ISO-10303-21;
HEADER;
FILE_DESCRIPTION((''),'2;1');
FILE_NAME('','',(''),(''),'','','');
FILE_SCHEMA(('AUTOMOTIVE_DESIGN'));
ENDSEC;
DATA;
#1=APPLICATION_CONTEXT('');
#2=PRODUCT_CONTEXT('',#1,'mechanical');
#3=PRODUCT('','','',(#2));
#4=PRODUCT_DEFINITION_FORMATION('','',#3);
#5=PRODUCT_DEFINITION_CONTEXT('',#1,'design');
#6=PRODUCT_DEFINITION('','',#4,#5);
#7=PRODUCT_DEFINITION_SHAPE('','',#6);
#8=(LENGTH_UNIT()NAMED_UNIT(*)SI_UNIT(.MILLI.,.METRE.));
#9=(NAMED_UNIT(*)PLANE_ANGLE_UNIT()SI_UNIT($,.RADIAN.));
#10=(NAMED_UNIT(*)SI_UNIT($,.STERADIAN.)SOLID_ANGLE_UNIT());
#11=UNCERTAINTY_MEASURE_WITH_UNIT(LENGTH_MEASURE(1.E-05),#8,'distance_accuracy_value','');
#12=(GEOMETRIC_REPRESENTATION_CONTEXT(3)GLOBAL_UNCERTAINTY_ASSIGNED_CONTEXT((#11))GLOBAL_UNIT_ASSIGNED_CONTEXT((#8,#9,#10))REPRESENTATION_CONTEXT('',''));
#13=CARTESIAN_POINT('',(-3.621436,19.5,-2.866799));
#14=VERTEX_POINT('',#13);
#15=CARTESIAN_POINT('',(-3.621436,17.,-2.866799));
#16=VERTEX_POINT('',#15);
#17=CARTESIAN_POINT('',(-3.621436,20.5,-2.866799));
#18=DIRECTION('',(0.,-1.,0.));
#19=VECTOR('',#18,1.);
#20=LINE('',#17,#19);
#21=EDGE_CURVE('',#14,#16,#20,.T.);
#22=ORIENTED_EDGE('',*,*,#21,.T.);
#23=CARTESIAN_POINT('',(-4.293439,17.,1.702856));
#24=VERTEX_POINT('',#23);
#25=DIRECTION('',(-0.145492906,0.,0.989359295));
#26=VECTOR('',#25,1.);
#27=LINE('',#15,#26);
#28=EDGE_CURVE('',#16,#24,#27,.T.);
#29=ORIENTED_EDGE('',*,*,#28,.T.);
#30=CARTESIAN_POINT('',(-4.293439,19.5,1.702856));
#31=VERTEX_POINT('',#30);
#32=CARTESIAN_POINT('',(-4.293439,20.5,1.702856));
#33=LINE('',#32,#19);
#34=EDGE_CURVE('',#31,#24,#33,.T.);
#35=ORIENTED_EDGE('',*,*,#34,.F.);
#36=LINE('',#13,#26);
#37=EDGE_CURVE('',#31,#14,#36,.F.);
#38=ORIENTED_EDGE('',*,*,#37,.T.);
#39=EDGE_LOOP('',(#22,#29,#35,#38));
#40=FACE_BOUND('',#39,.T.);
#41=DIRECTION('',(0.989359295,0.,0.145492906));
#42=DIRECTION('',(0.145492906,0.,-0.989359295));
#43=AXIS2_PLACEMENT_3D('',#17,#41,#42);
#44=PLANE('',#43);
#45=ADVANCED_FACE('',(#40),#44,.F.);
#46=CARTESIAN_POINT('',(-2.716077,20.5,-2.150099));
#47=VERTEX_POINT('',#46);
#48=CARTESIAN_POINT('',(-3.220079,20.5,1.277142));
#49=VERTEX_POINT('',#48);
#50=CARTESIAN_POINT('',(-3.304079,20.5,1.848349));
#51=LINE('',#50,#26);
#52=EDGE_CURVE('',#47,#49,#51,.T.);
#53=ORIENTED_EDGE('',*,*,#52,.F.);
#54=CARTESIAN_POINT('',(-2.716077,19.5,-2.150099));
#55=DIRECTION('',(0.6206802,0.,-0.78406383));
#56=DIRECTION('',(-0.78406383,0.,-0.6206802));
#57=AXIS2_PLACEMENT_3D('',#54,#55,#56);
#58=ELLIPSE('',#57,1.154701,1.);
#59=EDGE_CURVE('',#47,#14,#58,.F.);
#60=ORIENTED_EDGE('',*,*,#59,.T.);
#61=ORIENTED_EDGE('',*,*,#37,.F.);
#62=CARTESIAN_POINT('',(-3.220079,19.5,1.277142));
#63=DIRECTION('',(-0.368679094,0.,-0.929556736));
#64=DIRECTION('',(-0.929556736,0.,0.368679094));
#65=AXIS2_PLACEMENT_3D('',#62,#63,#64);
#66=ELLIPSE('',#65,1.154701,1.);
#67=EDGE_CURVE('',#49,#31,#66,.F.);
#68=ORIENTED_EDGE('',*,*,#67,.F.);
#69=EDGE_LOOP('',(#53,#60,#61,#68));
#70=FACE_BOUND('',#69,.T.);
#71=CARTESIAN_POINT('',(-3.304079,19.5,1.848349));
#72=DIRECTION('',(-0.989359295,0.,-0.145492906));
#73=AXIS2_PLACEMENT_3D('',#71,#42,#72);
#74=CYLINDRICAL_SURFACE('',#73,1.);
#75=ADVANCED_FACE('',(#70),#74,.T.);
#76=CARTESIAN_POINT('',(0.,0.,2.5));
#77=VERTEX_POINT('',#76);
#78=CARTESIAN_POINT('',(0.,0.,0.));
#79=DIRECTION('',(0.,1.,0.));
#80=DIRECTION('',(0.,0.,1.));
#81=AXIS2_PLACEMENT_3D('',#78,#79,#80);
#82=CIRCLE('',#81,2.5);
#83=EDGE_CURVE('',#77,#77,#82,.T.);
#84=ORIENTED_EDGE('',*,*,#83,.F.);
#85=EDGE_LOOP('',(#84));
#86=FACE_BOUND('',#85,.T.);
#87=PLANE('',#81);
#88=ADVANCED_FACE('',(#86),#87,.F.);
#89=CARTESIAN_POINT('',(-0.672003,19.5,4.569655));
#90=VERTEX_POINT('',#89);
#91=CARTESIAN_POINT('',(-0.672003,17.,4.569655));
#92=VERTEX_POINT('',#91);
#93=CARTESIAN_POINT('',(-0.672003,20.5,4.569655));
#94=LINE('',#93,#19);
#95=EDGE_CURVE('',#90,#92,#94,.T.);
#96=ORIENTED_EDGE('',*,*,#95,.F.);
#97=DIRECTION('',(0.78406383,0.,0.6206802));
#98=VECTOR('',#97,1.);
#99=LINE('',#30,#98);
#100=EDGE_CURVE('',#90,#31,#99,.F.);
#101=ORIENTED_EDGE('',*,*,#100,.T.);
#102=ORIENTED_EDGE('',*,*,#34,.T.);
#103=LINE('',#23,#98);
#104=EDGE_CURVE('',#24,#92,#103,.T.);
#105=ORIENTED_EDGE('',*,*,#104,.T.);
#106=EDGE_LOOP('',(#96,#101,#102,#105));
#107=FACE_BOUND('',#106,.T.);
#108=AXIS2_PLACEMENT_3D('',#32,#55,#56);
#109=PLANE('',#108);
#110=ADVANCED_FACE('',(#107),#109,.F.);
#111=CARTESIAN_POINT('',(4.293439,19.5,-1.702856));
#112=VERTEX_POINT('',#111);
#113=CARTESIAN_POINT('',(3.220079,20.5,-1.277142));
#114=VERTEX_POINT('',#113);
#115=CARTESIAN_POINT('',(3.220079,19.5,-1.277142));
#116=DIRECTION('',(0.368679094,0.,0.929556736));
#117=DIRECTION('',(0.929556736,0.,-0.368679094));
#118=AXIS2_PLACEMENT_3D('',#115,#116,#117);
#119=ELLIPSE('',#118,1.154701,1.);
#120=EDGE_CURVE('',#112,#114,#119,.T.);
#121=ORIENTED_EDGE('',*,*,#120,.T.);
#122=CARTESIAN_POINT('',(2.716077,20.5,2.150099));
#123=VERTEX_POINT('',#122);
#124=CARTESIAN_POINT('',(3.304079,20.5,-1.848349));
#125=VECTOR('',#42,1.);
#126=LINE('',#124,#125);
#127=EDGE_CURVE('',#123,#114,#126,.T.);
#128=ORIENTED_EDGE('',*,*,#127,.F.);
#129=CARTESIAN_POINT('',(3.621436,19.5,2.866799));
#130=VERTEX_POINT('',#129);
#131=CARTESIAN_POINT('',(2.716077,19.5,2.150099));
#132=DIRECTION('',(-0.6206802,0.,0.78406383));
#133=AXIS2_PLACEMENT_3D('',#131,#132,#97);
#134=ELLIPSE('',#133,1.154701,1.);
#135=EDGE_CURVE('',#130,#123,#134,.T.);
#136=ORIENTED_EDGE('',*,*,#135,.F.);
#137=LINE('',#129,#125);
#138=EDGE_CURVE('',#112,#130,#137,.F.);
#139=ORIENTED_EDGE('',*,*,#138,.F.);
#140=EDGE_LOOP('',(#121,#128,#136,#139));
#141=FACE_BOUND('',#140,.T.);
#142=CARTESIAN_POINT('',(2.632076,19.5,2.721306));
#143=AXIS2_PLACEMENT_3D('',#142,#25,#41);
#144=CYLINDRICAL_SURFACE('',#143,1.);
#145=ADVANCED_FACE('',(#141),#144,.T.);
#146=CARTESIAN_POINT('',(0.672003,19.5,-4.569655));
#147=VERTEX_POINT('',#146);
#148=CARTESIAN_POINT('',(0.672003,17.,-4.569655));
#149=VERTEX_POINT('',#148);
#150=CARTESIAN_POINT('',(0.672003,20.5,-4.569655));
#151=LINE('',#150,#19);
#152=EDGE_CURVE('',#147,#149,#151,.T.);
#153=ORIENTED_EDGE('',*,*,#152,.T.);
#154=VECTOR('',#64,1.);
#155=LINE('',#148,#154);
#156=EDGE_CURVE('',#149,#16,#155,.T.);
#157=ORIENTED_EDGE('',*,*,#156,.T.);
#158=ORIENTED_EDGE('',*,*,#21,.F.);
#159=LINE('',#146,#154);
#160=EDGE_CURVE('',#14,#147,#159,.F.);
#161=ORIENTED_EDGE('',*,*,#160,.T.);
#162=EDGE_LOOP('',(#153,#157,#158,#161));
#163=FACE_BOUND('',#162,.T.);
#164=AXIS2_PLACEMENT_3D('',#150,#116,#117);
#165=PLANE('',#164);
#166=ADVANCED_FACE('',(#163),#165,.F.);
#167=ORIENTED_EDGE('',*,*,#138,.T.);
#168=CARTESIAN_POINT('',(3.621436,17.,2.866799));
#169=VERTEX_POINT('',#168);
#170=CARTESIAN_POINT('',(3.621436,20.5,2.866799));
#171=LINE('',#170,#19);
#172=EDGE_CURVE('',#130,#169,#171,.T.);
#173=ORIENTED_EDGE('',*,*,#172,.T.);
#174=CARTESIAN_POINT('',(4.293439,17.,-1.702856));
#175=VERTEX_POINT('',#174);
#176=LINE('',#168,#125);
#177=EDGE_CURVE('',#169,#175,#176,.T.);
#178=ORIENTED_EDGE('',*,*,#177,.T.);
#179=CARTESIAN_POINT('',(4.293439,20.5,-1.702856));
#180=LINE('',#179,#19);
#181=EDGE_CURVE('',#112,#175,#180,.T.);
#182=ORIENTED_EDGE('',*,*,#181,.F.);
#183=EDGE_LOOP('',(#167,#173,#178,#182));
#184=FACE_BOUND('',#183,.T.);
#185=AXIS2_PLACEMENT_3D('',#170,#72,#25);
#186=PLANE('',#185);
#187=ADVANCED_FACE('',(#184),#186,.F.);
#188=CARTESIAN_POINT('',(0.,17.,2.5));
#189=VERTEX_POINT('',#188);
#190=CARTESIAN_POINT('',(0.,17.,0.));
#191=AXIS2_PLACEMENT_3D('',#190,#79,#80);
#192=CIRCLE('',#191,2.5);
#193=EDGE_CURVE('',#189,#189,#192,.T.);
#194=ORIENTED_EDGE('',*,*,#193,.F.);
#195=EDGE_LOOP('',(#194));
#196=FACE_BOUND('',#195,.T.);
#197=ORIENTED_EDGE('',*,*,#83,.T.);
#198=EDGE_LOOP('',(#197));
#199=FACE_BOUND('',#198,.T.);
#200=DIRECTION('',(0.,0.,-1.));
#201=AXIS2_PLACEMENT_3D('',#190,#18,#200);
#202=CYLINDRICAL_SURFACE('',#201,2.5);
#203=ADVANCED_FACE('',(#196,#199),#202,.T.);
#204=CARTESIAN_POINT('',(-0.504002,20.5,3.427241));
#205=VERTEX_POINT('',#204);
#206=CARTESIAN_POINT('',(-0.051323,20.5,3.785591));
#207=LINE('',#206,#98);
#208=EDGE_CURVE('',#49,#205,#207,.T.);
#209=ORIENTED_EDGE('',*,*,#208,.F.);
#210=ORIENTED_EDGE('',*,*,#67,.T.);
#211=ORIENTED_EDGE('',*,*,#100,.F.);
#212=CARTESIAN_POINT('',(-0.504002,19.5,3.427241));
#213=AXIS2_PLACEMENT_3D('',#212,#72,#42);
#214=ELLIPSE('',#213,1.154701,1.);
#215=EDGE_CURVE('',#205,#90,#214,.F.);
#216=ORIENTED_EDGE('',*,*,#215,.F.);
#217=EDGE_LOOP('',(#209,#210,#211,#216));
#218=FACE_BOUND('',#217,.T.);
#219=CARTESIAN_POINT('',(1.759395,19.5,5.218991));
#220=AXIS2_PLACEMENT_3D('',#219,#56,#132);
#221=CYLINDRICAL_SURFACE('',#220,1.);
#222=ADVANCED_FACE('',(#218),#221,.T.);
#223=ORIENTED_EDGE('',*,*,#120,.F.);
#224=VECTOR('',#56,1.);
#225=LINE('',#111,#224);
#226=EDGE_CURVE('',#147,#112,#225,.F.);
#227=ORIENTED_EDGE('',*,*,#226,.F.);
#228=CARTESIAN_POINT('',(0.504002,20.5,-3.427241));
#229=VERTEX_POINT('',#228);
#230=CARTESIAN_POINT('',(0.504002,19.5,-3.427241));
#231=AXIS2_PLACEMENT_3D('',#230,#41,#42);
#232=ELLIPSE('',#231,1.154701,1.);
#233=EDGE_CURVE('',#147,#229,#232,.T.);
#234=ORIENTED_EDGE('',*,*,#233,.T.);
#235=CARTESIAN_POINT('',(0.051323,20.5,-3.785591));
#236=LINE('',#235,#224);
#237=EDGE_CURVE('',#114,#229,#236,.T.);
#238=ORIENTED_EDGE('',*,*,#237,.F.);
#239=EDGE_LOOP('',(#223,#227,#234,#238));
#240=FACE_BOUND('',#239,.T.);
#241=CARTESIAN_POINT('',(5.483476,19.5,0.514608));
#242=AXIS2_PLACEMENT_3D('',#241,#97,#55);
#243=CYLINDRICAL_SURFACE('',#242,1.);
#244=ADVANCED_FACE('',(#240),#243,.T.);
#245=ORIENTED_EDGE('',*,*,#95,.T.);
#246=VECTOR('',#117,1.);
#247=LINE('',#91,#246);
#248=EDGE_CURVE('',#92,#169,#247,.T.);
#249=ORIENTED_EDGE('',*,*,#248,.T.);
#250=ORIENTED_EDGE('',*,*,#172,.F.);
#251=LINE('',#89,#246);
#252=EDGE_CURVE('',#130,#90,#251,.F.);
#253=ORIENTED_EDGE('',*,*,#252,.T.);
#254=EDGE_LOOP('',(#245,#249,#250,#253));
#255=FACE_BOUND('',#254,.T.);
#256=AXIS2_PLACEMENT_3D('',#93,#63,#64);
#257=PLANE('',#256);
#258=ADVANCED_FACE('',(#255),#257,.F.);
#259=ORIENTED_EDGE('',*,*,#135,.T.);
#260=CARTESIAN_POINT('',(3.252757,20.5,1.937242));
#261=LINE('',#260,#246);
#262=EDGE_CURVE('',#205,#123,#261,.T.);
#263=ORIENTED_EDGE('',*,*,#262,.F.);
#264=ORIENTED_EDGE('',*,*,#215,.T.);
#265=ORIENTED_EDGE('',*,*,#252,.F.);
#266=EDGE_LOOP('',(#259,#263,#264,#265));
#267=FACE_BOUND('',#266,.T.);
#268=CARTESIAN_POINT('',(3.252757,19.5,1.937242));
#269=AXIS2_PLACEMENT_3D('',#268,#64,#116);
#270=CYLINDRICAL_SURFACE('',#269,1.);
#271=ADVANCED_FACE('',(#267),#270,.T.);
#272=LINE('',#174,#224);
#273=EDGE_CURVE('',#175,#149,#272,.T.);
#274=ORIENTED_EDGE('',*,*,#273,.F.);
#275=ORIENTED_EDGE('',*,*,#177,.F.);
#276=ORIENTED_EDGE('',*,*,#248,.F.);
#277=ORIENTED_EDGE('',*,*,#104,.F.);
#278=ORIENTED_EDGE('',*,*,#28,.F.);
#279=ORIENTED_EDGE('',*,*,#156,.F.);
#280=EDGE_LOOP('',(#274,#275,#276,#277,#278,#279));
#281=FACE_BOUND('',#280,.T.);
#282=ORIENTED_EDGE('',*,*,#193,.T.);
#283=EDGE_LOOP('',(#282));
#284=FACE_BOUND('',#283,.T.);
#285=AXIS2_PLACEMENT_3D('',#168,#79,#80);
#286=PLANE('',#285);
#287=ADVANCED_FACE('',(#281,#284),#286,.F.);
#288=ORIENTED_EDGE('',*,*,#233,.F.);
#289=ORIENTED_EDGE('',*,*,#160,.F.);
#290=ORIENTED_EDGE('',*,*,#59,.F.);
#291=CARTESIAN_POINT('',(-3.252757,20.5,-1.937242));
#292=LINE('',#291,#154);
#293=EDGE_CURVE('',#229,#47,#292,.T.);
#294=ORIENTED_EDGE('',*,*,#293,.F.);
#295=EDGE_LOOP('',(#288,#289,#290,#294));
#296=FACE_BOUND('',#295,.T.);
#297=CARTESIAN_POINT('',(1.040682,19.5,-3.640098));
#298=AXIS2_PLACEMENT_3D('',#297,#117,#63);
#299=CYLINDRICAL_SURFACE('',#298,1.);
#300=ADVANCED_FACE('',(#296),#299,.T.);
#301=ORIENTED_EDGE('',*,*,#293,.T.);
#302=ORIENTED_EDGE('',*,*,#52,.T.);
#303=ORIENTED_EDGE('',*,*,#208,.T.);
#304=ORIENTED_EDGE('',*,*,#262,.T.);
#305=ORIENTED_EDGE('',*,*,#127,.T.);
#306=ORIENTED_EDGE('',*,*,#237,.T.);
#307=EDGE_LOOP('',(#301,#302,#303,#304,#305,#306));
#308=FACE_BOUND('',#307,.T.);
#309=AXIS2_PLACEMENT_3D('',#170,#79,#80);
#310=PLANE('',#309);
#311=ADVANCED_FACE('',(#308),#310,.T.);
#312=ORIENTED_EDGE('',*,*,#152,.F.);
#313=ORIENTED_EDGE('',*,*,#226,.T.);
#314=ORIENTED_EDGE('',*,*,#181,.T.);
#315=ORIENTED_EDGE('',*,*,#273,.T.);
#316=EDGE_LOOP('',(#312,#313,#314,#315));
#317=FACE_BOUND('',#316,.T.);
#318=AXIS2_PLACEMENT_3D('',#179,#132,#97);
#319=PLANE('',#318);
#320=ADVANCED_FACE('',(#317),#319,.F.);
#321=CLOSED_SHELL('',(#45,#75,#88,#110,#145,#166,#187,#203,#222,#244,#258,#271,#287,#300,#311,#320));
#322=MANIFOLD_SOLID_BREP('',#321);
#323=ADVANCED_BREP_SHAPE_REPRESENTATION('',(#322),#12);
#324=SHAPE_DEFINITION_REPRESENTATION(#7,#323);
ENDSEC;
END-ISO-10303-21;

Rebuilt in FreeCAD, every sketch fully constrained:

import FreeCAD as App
import Part
import Sketcher


def edges_at(feature, points):
    """Names of the edges that pass closest to the given points."""
    edges = feature.Shape.Edges
    near = lambda p: min(range(len(edges)), key=lambda i: edges[i].distToShape(Part.Vertex(*p))[0])
    return sorted({f"Edge{near(p) + 1}" for p in points})


def add_polygon(sketch, points):
    """Adds a closed chain of lines whose ends are joined by coincident constraints."""
    first, n = sketch.GeometryCount, len(points)
    for a, b in zip(points, points[1:] + points[:1]):
        sketch.addGeometry(Part.LineSegment(App.Vector(*a, 0), App.Vector(*b, 0)), False)
    for i in range(n):
        sketch.addConstraint(Sketcher.Constraint("Coincident", first + i, 2, first + (i + 1) % n, 1))

doc = App.newDocument("Part")
body = doc.addObject("PartDesign::Body", "Body")

# Sketch on XZ plane
sketch1 = body.newObject("Sketcher::SketchObject", "Sketch")
sketch1.AttachmentSupport = (doc.getObject("XZ_Plane"), [""])
sketch1.MapMode = "FlatFace"
sketch1.addGeometry(Part.Circle(App.Vector(0, 0, 0), App.Vector(0, 0, 1), 2.5), False)
sketch1.addConstraint(Sketcher.Constraint("Coincident", 0, 3, -1, 1))
sketch1.addConstraint(Sketcher.Constraint("Diameter", 0, 5.0))
pad1 = body.newObject("PartDesign::Pad", "Pad")
pad1.Profile = sketch1
pad1.Length = 17
pad1.Reversed = True

# Sketch on XZ plane
sketch2 = body.newObject("Sketcher::SketchObject", "Sketch001")
sketch2.AttachmentSupport = (doc.getObject("XZ_Plane"), [""])
sketch2.MapMode = "FlatFace"
sketch2.AttachmentOffset = App.Placement(App.Vector(0, 0, -17), App.Rotation())
add_polygon(sketch2, [(3.6, 2.9), (4.3, -1.7), (0.7, -4.6), (-3.6, -2.9), (-4.3, 1.7), (-0.7, 4.6)])  # lines 0-5
sketch2.addConstraint(Sketcher.Constraint("Symmetric", 0, 2, 3, 2, -1, 1))
sketch2.addConstraint(Sketcher.Constraint("Symmetric", 1, 2, 4, 2, -1, 1))
sketch2.addConstraint(Sketcher.Constraint("Symmetric", 2, 2, 5, 2, -1, 1))
sketch2.addConstraint(Sketcher.Constraint("Equal", 0, 1))
sketch2.addConstraint(Sketcher.Constraint("Equal", 1, 2))
sketch2.addConstraint(Sketcher.Constraint("DistanceY", 2, 2, -1, 1, 2.866799))
sketch2.addConstraint(Sketcher.Constraint("DistanceY", 1, 2, 0, 2, 2.866799))
sketch2.addConstraint(Sketcher.Constraint("DistanceX", -1, 1, 0, 2, 4.293439))
sketch2.addConstraint(Sketcher.Constraint("DistanceX", 2, 2, 1, 2, 4.293439))
pad2 = body.newObject("PartDesign::Pad", "Pad001")
pad2.Profile = sketch2
pad2.Length = 3.5
pad2.Reversed = True
doc.recompute()

fillet = body.newObject("PartDesign::Fillet", "Fillet")
fillet.Base = (pad2, edges_at(pad2, [
    (1.475, 20.5, 3.718),
    (3.957, 20.5, 0.582),
    (2.483, 20.5, -3.136),
    (-1.475, 20.5, -3.718),
    (-3.957, 20.5, -0.582),
    (-2.483, 20.5, 3.136),
]))
fillet.Radius = 1

doc.recompute()
